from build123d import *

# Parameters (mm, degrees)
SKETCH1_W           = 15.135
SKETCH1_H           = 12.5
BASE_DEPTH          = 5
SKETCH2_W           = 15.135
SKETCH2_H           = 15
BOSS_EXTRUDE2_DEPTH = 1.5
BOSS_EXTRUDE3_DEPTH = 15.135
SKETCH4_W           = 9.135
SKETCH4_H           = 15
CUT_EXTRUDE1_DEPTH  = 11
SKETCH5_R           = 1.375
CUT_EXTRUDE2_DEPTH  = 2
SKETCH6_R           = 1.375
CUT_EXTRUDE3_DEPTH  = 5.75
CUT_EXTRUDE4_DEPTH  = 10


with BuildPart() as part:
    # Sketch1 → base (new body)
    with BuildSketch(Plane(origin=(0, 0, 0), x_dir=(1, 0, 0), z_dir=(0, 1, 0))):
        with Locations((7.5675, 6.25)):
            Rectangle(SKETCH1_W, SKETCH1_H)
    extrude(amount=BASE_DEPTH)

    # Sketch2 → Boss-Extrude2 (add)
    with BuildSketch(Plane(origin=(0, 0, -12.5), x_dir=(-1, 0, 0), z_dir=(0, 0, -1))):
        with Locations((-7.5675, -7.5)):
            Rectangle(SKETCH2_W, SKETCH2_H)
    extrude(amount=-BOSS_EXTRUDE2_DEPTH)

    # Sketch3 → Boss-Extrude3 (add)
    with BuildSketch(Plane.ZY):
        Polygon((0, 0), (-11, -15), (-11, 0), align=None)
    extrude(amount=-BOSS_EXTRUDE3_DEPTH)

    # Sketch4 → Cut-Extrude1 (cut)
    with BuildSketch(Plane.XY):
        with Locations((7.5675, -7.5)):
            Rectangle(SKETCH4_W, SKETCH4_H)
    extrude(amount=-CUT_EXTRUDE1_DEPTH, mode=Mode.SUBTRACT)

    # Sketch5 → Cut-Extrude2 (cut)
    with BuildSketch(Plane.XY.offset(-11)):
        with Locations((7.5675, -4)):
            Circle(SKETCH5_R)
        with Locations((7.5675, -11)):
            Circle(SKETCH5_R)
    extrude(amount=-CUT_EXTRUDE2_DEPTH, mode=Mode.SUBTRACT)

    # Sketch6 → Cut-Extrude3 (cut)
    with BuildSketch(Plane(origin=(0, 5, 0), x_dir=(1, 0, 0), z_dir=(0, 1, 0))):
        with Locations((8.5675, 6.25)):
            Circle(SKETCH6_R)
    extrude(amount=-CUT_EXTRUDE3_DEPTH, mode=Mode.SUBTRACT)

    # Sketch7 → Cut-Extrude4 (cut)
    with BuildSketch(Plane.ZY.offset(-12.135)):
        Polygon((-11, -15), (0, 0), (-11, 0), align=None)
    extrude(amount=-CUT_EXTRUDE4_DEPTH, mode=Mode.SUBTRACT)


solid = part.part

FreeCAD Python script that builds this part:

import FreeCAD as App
import Part
import Sketcher
from FreeCAD import Vector


def add_polygon(sketch, points):
    """Adds a closed chain of lines whose ends are joined by coincident constraints."""
    first, n = sketch.GeometryCount, len(points)
    for a, b in zip(points, points[1:] + points[:1]):
        sketch.addGeometry(Part.LineSegment(App.Vector(*a, 0), App.Vector(*b, 0)), False)
    for i in range(n):
        sketch.addConstraint(Sketcher.Constraint("Coincident", first + i, 2, first + (i + 1) % n, 1))

doc = App.newDocument("Part")
body = doc.addObject("PartDesign::Body", "Body")

# Sketch on XZ plane
sketch1 = body.newObject("Sketcher::SketchObject", "Sketch")
sketch1.AttachmentSupport = (doc.getObject("XZ_Plane"), [""])
sketch1.MapMode = "FlatFace"
add_polygon(sketch1, [(0, -12.5), (0, 0), (15.135, 0), (15.135, -12.5)])  # lines 0-3
sketch1.addConstraint(Sketcher.Constraint("Vertical", 0))
sketch1.addConstraint(Sketcher.Constraint("Horizontal", 1))
sketch1.addConstraint(Sketcher.Constraint("Vertical", 2))
sketch1.addConstraint(Sketcher.Constraint("Horizontal", 3))
sketch1.addConstraint(Sketcher.Constraint("Coincident", 0, 2, -1, 1))
sketch1.addConstraint(Sketcher.Constraint("DistanceY", 0, 1, 0, 2, 12.5))
sketch1.addConstraint(Sketcher.Constraint("DistanceX", 1, 1, 1, 2, 15.135))
pad1 = body.newObject("PartDesign::Pad", "Pad")
pad1.Profile = sketch1
pad1.Length = 5
pad1.Reversed = True

# Sketch on XY plane
sketch2 = body.newObject("Sketcher::SketchObject", "Sketch001")
sketch2.AttachmentSupport = (doc.getObject("XY_Plane"), [""])
sketch2.MapMode = "FlatFace"
sketch2.AttachmentOffset = App.Placement(Vector(0, 0, -12.5), App.Rotation())
add_polygon(sketch2, [(15.135, 0), (15.135, -15), (0, -15), (0, 0)])  # lines 0-3
sketch2.addConstraint(Sketcher.Constraint("Vertical", 0))
sketch2.addConstraint(Sketcher.Constraint("Horizontal", 1))
sketch2.addConstraint(Sketcher.Constraint("Vertical", 2))
sketch2.addConstraint(Sketcher.Constraint("Horizontal", 3))
sketch2.addConstraint(Sketcher.Constraint("Coincident", 2, 2, -1, 1))
sketch2.addConstraint(Sketcher.Constraint("DistanceY", 0, 2, 0, 1, 15.0))
sketch2.addConstraint(Sketcher.Constraint("DistanceX", 1, 2, 1, 1, 15.135))
pad2 = body.newObject("PartDesign::Pad", "Pad001")
pad2.Profile = sketch2
pad2.Length = 1.5

# Sketch on YZ plane
sketch3 = body.newObject("Sketcher::SketchObject", "Sketch002")
sketch3.AttachmentSupport = (doc.getObject("YZ_Plane"), [""])
sketch3.MapMode = "FlatFace"
add_polygon(sketch3, [(-15, -11), (0, 0), (0, -11)])  # lines 0-2
sketch3.addConstraint(Sketcher.Constraint("Vertical", 1))
sketch3.addConstraint(Sketcher.Constraint("Horizontal", 2))
sketch3.addConstraint(Sketcher.Constraint("Coincident", 0, 2, -1, 1))
sketch3.addConstraint(Sketcher.Constraint("DistanceX", 2, 2, 2, 1, 15.0))
sketch3.addConstraint(Sketcher.Constraint("DistanceY", 1, 2, 1, 1, 11.0))
pad3 = body.newObject("PartDesign::Pad", "Pad002")
pad3.Profile = sketch3
pad3.Length = 15.135

# Sketch on XY plane
sketch4 = body.newObject("Sketcher::SketchObject", "Sketch003")
sketch4.AttachmentSupport = (doc.getObject("XY_Plane"), [""])
sketch4.MapMode = "FlatFace"
add_polygon(sketch4, [(3, 0), (3, -15), (12.135, -15), (12.135, 0)])  # lines 0-3
sketch4.addConstraint(Sketcher.Constraint("Vertical", 0))
sketch4.addConstraint(Sketcher.Constraint("Horizontal", 1))
sketch4.addConstraint(Sketcher.Constraint("Vertical", 2))
sketch4.addConstraint(Sketcher.Constraint("Horizontal", 3))
sketch4.addConstraint(Sketcher.Constraint("PointOnObject", 2, 2, -1))
sketch4.addConstraint(Sketcher.Constraint("DistanceY", 0, 2, 0, 1, 15.0))
sketch4.addConstraint(Sketcher.Constraint("DistanceX", -1, 1, 0, 2, 3.0))
sketch4.addConstraint(Sketcher.Constraint("DistanceX", 1, 1, 1, 2, 9.135))
pocket1 = body.newObject("PartDesign::Pocket", "Pocket")
pocket1.Profile = sketch4
pocket1.Length = 11

# Sketch on XY plane
sketch5 = body.newObject("Sketcher::SketchObject", "Sketch004")
sketch5.AttachmentSupport = (doc.getObject("XY_Plane"), [""])
sketch5.MapMode = "FlatFace"
sketch5.AttachmentOffset = App.Placement(Vector(0, 0, -11), App.Rotation())
sketch5.addGeometry(Part.Circle(Vector(7.5675, -4, 0), Vector(0, 0, 1), 1.375), False)
sketch5.addGeometry(Part.Circle(Vector(7.5675, -11, 0), Vector(0, 0, 1), 1.375), False)
sketch5.addConstraint(Sketcher.Constraint("Equal", 0, 1))
sketch5.addConstraint(Sketcher.Constraint("Vertical", 0, 3, 1, 3))
sketch5.addConstraint(Sketcher.Constraint("Diameter", 0, 2.75))
sketch5.addConstraint(Sketcher.Constraint("DistanceY", 0, 3, -1, 1, 4.0))
sketch5.addConstraint(Sketcher.Constraint("DistanceY", 1, 3, -1, 1, 11.0))
sketch5.addConstraint(Sketcher.Constraint("DistanceX", -1, 1, 0, 3, 7.5675))
pocket2 = body.newObject("PartDesign::Pocket", "Pocket001")
pocket2.Profile = sketch5
pocket2.Length = 2

# Sketch on XZ plane
sketch6 = body.newObject("Sketcher::SketchObject", "Sketch005")
sketch6.AttachmentSupport = (doc.getObject("XZ_Plane"), [""])
sketch6.MapMode = "FlatFace"
sketch6.AttachmentOffset = App.Placement(Vector(0, 0, -5), App.Rotation())
sketch6.addGeometry(Part.Circle(Vector(8.5675, -6.25, 0), Vector(0, 0, 1), 1.375), False)
sketch6.addConstraint(Sketcher.Constraint("Diameter", 0, 2.75))
sketch6.addConstraint(Sketcher.Constraint("DistanceY", 0, 3, -1, 1, 6.25))
sketch6.addConstraint(Sketcher.Constraint("DistanceX", -1, 1, 0, 3, 8.5675))
pocket3 = body.newObject("PartDesign::Pocket", "Pocket002")
pocket3.Profile = sketch6
pocket3.Length = 5.75
pocket3.Reversed = True

# Sketch on YZ plane
sketch7 = body.newObject("Sketcher::SketchObject", "Sketch006")
sketch7.AttachmentSupport = (doc.getObject("YZ_Plane"), [""])
sketch7.MapMode = "FlatFace"
sketch7.AttachmentOffset = App.Placement(Vector(0, 0, 12.135), App.Rotation())
add_polygon(sketch7, [(-15, -11), (0, 0), (0, -11)])  # lines 0-2
sketch7.addConstraint(Sketcher.Constraint("Vertical", 1))
sketch7.addConstraint(Sketcher.Constraint("Horizontal", 2))
sketch7.addConstraint(Sketcher.Constraint("Coincident", 0, 2, -1, 1))
sketch7.addConstraint(Sketcher.Constraint("DistanceX", 2, 2, 2, 1, 15.0))
sketch7.addConstraint(Sketcher.Constraint("DistanceY", 1, 2, 1, 1, 11.0))
pocket4 = body.newObject("PartDesign::Pocket", "Pocket003")
pocket4.Profile = sketch7
pocket4.Length = 10
pocket4.Reversed = True

doc.recompute()
